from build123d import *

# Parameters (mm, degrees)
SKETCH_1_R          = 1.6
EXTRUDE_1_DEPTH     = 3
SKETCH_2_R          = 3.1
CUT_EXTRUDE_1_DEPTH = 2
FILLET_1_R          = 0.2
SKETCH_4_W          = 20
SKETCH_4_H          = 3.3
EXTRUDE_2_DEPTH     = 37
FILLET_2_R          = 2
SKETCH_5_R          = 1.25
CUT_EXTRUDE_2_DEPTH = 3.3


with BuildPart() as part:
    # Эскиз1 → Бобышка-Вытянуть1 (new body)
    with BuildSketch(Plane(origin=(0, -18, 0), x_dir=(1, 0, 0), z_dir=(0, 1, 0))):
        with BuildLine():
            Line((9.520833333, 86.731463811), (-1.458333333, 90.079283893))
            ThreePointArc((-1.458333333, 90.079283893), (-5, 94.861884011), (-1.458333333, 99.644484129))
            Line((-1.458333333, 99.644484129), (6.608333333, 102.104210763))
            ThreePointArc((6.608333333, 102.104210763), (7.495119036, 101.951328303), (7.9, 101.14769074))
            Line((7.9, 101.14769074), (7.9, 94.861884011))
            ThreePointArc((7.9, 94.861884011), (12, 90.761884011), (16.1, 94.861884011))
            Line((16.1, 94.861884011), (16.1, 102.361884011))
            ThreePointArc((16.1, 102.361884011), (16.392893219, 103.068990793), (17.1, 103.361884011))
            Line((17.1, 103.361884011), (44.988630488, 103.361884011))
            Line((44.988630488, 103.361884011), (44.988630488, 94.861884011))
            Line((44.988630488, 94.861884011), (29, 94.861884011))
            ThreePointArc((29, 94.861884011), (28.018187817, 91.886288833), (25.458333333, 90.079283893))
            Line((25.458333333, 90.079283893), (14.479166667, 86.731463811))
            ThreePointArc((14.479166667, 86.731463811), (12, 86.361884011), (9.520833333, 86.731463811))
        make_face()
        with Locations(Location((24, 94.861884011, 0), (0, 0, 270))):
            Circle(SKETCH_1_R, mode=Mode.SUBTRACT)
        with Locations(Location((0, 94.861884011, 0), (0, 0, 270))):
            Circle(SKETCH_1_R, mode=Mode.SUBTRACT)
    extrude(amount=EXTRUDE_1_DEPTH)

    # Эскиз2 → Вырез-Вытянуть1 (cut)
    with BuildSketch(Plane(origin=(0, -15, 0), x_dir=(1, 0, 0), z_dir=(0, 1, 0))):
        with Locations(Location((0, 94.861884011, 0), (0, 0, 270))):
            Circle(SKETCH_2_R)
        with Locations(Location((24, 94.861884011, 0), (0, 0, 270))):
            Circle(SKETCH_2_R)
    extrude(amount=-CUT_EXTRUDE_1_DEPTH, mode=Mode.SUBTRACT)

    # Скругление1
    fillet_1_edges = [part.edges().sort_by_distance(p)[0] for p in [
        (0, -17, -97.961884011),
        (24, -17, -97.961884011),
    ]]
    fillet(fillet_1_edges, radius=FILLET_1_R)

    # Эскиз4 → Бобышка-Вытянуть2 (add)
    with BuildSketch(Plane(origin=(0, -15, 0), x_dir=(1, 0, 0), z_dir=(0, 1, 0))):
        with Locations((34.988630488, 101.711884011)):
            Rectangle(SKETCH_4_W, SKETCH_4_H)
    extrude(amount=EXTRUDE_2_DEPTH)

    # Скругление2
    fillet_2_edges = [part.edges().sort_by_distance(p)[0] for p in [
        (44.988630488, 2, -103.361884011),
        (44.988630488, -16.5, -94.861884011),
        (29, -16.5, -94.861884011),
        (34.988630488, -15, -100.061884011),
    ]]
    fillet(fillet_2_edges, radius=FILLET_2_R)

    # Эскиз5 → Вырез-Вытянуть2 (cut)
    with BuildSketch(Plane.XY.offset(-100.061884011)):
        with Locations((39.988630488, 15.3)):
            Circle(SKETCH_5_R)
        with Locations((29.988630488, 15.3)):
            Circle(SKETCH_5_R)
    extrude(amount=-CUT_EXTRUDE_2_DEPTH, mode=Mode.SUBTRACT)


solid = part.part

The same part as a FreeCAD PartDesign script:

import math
import FreeCAD as App
import Part
import Sketcher

V = App.Vector
Q = App.Units.Quantity


def edges_at(feature, points):
    """Names of the edges that pass closest to the given points."""
    edges = feature.Shape.Edges
    near = lambda p: min(range(len(edges)), key=lambda i: edges[i].distToShape(Part.Vertex(*p))[0])
    return sorted({f"Edge{near(p) + 1}" for p in points})


def add_polygon(sketch, points):
    """Adds a closed chain of lines whose ends are joined by coincident constraints."""
    first, n = sketch.GeometryCount, len(points)
    for a, b in zip(points, points[1:] + points[:1]):
        sketch.addGeometry(Part.LineSegment(App.Vector(*a, 0), App.Vector(*b, 0)), False)
    for i in range(n):
        sketch.addConstraint(Sketcher.Constraint("Coincident", first + i, 2, first + (i + 1) % n, 1))

doc = App.newDocument("Part")
body = doc.addObject("PartDesign::Body", "Body")

sketch1 = body.newObject("Sketcher::SketchObject", "Sketch")
sketch1.AttachmentSupport = (doc.getObject("XZ_Plane"), [""])
sketch1.MapMode = "FlatFace"
sketch1.AttachmentOffset = App.Placement(V(0, 0, 18), App.Rotation())
sketch1.addGeometry([
    Part.LineSegment(V(-1.458333, -90.079284, 0), V(9.520833, -86.731464, 0)),
    Part.ArcOfCircle(Part.Circle(V(12, -94.861884, 0), V(0, 0, 1), 8.5), math.radians(73.042237), math.radians(106.957763)),
    Part.LineSegment(V(14.479167, -86.731464, 0), V(25.458333, -90.079284, 0)),
    Part.ArcOfCircle(Part.Circle(V(24, -94.861884, 0), V(0, 0, 1), 5), math.radians(0), math.radians(73.042237)),
    Part.LineSegment(V(29, -94.861884, 0), V(44.98863, -94.861884, 0)),
    Part.LineSegment(V(44.98863, -94.861884, 0), V(44.98863, -103.361884, 0)),
    Part.LineSegment(V(44.98863, -103.361884, 0), V(17.1, -103.361884, 0)),
    Part.ArcOfCircle(Part.Circle(V(17.1, -102.361884, 0), V(0, 0, 1), 1), math.radians(180), math.radians(270)),
    Part.LineSegment(V(16.1, -102.361884, 0), V(16.1, -94.861884, 0)),
    Part.ArcOfCircle(Part.Circle(V(12, -94.861884, 0), V(0, 0, 1), 4.1), math.radians(0), math.radians(180)),
    Part.LineSegment(V(7.9, -94.861884, 0), V(7.9, -101.147691, 0)),
    Part.ArcOfCircle(Part.Circle(V(6.9, -101.147691, 0), V(0, 0, 1), 1), math.radians(-106.957763), math.radians(0)),
    Part.LineSegment(V(6.608333, -102.104211, 0), V(-1.458333, -99.644484, 0)),
    Part.ArcOfCircle(Part.Circle(V(0, -94.861884, 0), V(0, 0, 1), 5), math.radians(106.957763), math.radians(253.042237)),
    Part.Circle(V(24, -94.861884, 0), V(0, 0, 1), 1.6),
    Part.Circle(V(0, -94.861884, 0), V(0, 0, 1), 1.6),
], False)
sketch1.addConstraint([
    Sketcher.Constraint("Tangent", 0, 2, 1, 2),
    Sketcher.Constraint("Tangent", 1, 1, 2, 1),
    Sketcher.Constraint("Tangent", 2, 2, 3, 2),
    Sketcher.Constraint("Coincident", 3, 1, 4, 1),
    Sketcher.Constraint("Coincident", 4, 2, 5, 1),
    Sketcher.Constraint("Coincident", 5, 2, 6, 1),
    Sketcher.Constraint("Tangent", 6, 2, 7, 2),
    Sketcher.Constraint("Tangent", 7, 1, 8, 1),
    Sketcher.Constraint("Tangent", 8, 2, 9, 1),
    Sketcher.Constraint("Tangent", 9, 2, 10, 1),
    Sketcher.Constraint("Tangent", 10, 2, 11, 2),
    Sketcher.Constraint("Tangent", 11, 1, 12, 1),
    Sketcher.Constraint("Tangent", 12, 2, 13, 2),
    Sketcher.Constraint("Tangent", 13, 1, 0, 1),
    Sketcher.Constraint("Horizontal", 4),
    Sketcher.Constraint("Vertical", 5),
    Sketcher.Constraint("Horizontal", 6),
    Sketcher.Constraint("Vertical", 8),
    Sketcher.Constraint("Vertical", 10),
    Sketcher.Constraint("Coincident", 9, 3, 1, 3),
    Sketcher.Constraint("Coincident", 14, 3, 3, 3),
    Sketcher.Constraint("Coincident", 15, 3, 13, 3),
    Sketcher.Constraint("Equal", 7, 11),
    Sketcher.Constraint("Equal", 3, 13),
    Sketcher.Constraint("Equal", 14, 15),
    Sketcher.Constraint("PointOnObject", 13, 3, -2),
    Sketcher.Constraint("Parallel", 2, 12),
    Sketcher.Constraint("Horizontal", 1, 3, 3, 3),
    Sketcher.Constraint("Horizontal", 9, 3, 13, 3),
    Sketcher.Constraint("Horizontal", 0, 2, 1, 1),
    Sketcher.Constraint("Horizontal", 15, 3, 3, 1),
    Sketcher.Constraint("Radius", 3, Q("5 mm")),
    Sketcher.Constraint("Radius", 7, Q("1 mm")),
    Sketcher.Constraint("Diameter", 14, Q("3.2 mm")),
    Sketcher.Constraint("Radius", 1, Q("8.5 mm")),
    Sketcher.Constraint("Radius", 9, Q("4.1 mm")),
    Sketcher.Constraint("DistanceY", 5, 2, 5, 1, Q("8.5 mm")),
    Sketcher.Constraint("DistanceX", -1, 1, 1, 3, Q("12 mm")),
    Sketcher.Constraint("DistanceX", 4, 1, 4, 2, Q("15.98863 mm")),
    Sketcher.Constraint("DistanceY", 11, 3, -1, 1, Q("101.147691 mm")),
])
pad1 = body.newObject("PartDesign::Pad", "Pad")
pad1.Profile = sketch1
pad1.Length = 3
pad1.Reversed = True

sketch2 = body.newObject("Sketcher::SketchObject", "Sketch001")
sketch2.AttachmentSupport = (doc.getObject("XZ_Plane"), [""])
sketch2.MapMode = "FlatFace"
sketch2.AttachmentOffset = App.Placement(V(0, 0, 15), App.Rotation())
sketch2.addGeometry([
    Part.Circle(V(0, -94.861884, 0), V(0, 0, 1), 3.1),
    Part.Circle(V(24, -94.861884, 0), V(0, 0, 1), 3.1),
], False)
sketch2.addConstraint([
    Sketcher.Constraint("Equal", 0, 1),
    Sketcher.Constraint("PointOnObject", 0, 3, -2),
    Sketcher.Constraint("Horizontal", 0, 3, 1, 3),
    Sketcher.Constraint("Diameter", 0, Q("6.2 mm")),
    Sketcher.Constraint("DistanceX", -1, 1, 1, 3, Q("24 mm")),
    Sketcher.Constraint("DistanceY", 0, 3, -1, 1, Q("94.861884 mm")),
])
pocket1 = body.newObject("PartDesign::Pocket", "Pocket")
pocket1.Profile = sketch2
pocket1.Length = 2
pocket1.Reversed = True
doc.recompute()

fillet = body.newObject("PartDesign::Fillet", "Fillet")
fillet.Base = (pocket1, edges_at(pocket1, [(0, -17, -97.962), (24, -17, -97.962)]))
fillet.Radius = 0.2

sketch3 = body.newObject("Sketcher::SketchObject", "Sketch002")
sketch3.AttachmentSupport = (doc.getObject("XZ_Plane"), [""])
sketch3.MapMode = "FlatFace"
sketch3.AttachmentOffset = App.Placement(V(0, 0, 15), App.Rotation())
add_polygon(sketch3, [(24.98863, -103.361884), (24.98863, -100.061884), (44.98863, -100.061884), (44.98863, -103.361884)])
sketch3.addConstraint([
    Sketcher.Constraint("Vertical", 0),
    Sketcher.Constraint("Horizontal", 1),
    Sketcher.Constraint("Vertical", 2),
    Sketcher.Constraint("Horizontal", 3),
    Sketcher.Constraint("DistanceX", 1, 1, 1, 2, Q("20 mm")),
    Sketcher.Constraint("DistanceY", 0, 1, 0, 2, Q("3.3 mm")),
    Sketcher.Constraint("DistanceX", -1, 1, 0, 2, Q("24.98863 mm")),
    Sketcher.Constraint("DistanceY", 0, 2, -1, 1, Q("100.061884 mm")),
])
pad2 = body.newObject("PartDesign::Pad", "Pad001")
pad2.Profile = sketch3
pad2.Length = 37
pad2.Reversed = True
doc.recompute()

fillet2 = body.newObject("PartDesign::Fillet", "Fillet001")
fillet2.Base = (pad2, edges_at(pad2, [
    (44.989, 2, -103.362),
    (44.989, -16.5, -94.862),
    (29, -16.5, -94.862),
    (34.989, -15, -100.062),
]))
fillet2.Radius = 2

sketch4 = body.newObject("Sketcher::SketchObject", "Sketch003")
sketch4.AttachmentSupport = (doc.getObject("XY_Plane"), [""])
sketch4.MapMode = "FlatFace"
sketch4.AttachmentOffset = App.Placement(V(0, 0, -100.061884), App.Rotation())
sketch4.addGeometry([
    Part.Circle(V(39.98863, 15.3, 0), V(0, 0, 1), 1.25),
    Part.Circle(V(29.98863, 15.3, 0), V(0, 0, 1), 1.25),
], False)
sketch4.addConstraint([
    Sketcher.Constraint("Equal", 0, 1),
    Sketcher.Constraint("Horizontal", 0, 3, 1, 3),
    Sketcher.Constraint("Diameter", 0, Q("2.5 mm")),
    Sketcher.Constraint("DistanceX", 1, 3, 0, 3, Q("10 mm")),
    Sketcher.Constraint("DistanceY", -1, 1, 0, 3, Q("15.3 mm")),
    Sketcher.Constraint("DistanceX", -1, 1, 0, 3, Q("39.98863 mm")),
])
pocket2 = body.newObject("PartDesign::Pocket", "Pocket001")
pocket2.Profile = sketch4
pocket2.Length = 3.3

doc.recompute()
